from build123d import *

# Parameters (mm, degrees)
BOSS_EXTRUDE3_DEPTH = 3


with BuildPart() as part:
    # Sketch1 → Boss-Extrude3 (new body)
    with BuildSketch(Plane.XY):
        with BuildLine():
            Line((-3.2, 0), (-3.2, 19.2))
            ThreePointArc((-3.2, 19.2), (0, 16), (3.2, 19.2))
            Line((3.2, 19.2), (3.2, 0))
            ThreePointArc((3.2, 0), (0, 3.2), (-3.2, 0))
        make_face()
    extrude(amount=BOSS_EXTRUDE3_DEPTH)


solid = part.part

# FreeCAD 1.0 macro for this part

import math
import FreeCAD as App
import Part
import Sketcher

V = App.Vector
Q = App.Units.Quantity

doc = App.newDocument("Part")
body = doc.addObject("PartDesign::Body", "Body")

sketch1 = body.newObject("Sketcher::SketchObject", "Sketch")
sketch1.AttachmentSupport = (doc.getObject("XY_Plane"), [""])
sketch1.MapMode = "FlatFace"
sketch1.addGeometry(Part.LineSegment(V(-3.2, 19.2, 0), V(-3.2, 0, 0)), False)
sketch1.addGeometry(Part.ArcOfCircle(Part.Circle(V(0, 0, 0), V(0, 0, 1), 3.2), math.radians(0), math.radians(180)), False)
sketch1.addGeometry(Part.LineSegment(V(3.2, 0, 0), V(3.2, 19.2, 0)), False)
sketch1.addGeometry(Part.ArcOfCircle(Part.Circle(V(0, 19.2, 0), V(0, 0, 1), 3.2), math.radians(180), math.radians(360)), False)
sketch1.addConstraint(Sketcher.Constraint("Tangent", 0, 2, 1, 2))
sketch1.addConstraint(Sketcher.Constraint("Tangent", 1, 1, 2, 1))
sketch1.addConstraint(Sketcher.Constraint("Tangent", 2, 2, 3, 2))
sketch1.addConstraint(Sketcher.Constraint("Tangent", 3, 1, 0, 1))
sketch1.addConstraint(Sketcher.Constraint("Vertical", 0))
sketch1.addConstraint(Sketcher.Constraint("Vertical", 2))
sketch1.addConstraint(Sketcher.Constraint("Coincident", 1, 3, -1, 1))
sketch1.addConstraint(Sketcher.Constraint("Radius", 1, Q("3.2 mm")))
sketch1.addConstraint(Sketcher.Constraint("DistanceY", 0, 2, 0, 1, Q("19.2 mm")))
pad1 = body.newObject("PartDesign::Pad", "Pad")
pad1.Profile = sketch1
pad1.Length = 3

doc.recompute()
